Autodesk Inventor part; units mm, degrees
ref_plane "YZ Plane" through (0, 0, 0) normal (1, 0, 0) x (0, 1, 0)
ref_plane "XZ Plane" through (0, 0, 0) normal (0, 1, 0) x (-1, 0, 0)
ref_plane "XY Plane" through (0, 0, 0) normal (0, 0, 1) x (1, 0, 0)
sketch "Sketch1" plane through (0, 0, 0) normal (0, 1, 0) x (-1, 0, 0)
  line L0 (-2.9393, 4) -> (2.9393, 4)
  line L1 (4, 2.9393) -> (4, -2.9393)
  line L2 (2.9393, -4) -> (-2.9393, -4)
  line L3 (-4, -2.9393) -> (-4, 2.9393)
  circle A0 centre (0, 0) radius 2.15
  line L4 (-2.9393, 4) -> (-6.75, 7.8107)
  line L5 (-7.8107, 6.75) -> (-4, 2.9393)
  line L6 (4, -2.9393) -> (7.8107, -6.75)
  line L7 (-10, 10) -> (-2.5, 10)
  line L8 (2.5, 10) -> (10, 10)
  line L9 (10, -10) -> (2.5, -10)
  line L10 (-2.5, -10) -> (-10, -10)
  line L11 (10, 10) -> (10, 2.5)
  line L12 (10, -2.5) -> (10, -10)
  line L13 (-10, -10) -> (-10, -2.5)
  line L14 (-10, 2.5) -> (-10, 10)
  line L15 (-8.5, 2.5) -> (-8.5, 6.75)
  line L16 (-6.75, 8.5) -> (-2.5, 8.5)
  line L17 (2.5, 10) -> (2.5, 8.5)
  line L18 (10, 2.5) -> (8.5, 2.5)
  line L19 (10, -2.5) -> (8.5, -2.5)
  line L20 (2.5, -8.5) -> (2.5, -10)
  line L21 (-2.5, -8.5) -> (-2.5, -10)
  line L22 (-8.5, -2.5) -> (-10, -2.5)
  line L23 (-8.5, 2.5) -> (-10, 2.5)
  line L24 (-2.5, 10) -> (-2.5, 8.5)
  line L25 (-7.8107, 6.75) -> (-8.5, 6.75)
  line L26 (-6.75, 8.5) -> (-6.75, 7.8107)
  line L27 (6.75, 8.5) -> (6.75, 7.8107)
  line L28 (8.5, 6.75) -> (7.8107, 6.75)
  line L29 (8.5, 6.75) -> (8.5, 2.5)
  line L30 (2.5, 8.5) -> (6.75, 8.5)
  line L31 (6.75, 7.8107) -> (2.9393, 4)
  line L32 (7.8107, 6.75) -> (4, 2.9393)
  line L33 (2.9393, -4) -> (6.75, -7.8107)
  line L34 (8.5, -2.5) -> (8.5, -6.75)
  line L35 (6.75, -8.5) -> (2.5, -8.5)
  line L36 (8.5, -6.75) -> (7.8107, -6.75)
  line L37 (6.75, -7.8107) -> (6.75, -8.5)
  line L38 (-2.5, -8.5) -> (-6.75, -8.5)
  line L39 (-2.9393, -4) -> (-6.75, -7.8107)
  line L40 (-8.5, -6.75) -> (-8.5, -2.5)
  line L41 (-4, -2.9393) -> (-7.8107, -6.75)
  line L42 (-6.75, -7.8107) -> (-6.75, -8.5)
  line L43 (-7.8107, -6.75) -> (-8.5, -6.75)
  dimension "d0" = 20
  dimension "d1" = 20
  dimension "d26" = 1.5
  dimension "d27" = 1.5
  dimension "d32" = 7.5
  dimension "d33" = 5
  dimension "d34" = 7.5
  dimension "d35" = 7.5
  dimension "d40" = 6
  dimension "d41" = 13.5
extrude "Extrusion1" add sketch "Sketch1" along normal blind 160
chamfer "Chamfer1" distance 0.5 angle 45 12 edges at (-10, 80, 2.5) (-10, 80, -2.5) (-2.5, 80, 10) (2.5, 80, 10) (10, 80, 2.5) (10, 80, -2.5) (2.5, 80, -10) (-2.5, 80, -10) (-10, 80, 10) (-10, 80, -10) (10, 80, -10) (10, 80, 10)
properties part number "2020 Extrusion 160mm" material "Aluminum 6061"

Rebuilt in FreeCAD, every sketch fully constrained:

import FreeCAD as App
import Part
import Sketcher
Q = App.Units.Quantity


def edges_at(feature, points):
    """Names of the edges that pass closest to the given points."""
    edges = feature.Shape.Edges
    near = lambda p: min(range(len(edges)), key=lambda i: edges[i].distToShape(Part.Vertex(*p))[0])
    return sorted({f"Edge{near(p) + 1}" for p in points})

doc = App.newDocument("Part")
body = doc.addObject("PartDesign::Body", "Body")

sketch1 = body.newObject("Sketcher::SketchObject", "Sketch")
sketch1.AttachmentSupport = (doc.getObject("XZ_Plane"), [""])
sketch1.MapMode = "FlatFace"
sketch1.addGeometry([
    Part.LineSegment(App.Vector(-2.9393, 4, 0), App.Vector(2.9393, 4, 0)),
    Part.LineSegment(App.Vector(2.9393, 4, 0), App.Vector(6.75, 7.8107, 0)),
    Part.LineSegment(App.Vector(6.75, 7.8107, 0), App.Vector(6.75, 8.5, 0)),
    Part.LineSegment(App.Vector(6.75, 8.5, 0), App.Vector(2.5, 8.5, 0)),
    Part.LineSegment(App.Vector(2.5, 8.5, 0), App.Vector(2.5, 10, 0)),
    Part.LineSegment(App.Vector(2.5, 10, 0), App.Vector(10, 10, 0)),
    Part.LineSegment(App.Vector(10, 10, 0), App.Vector(10, 2.5, 0)),
    Part.LineSegment(App.Vector(10, 2.5, 0), App.Vector(8.5, 2.5, 0)),
    Part.LineSegment(App.Vector(8.5, 2.5, 0), App.Vector(8.5, 6.75, 0)),
    Part.LineSegment(App.Vector(8.5, 6.75, 0), App.Vector(7.8107, 6.75, 0)),
    Part.LineSegment(App.Vector(7.8107, 6.75, 0), App.Vector(4, 2.9393, 0)),
    Part.LineSegment(App.Vector(4, 2.9393, 0), App.Vector(4, -2.9393, 0)),
    Part.LineSegment(App.Vector(4, -2.9393, 0), App.Vector(7.8107, -6.75, 0)),
    Part.LineSegment(App.Vector(7.8107, -6.75, 0), App.Vector(8.5, -6.75, 0)),
    Part.LineSegment(App.Vector(8.5, -6.75, 0), App.Vector(8.5, -2.5, 0)),
    Part.LineSegment(App.Vector(8.5, -2.5, 0), App.Vector(10, -2.5, 0)),
    Part.LineSegment(App.Vector(10, -2.5, 0), App.Vector(10, -10, 0)),
    Part.LineSegment(App.Vector(10, -10, 0), App.Vector(2.5, -10, 0)),
    Part.LineSegment(App.Vector(2.5, -10, 0), App.Vector(2.5, -8.5, 0)),
    Part.LineSegment(App.Vector(2.5, -8.5, 0), App.Vector(6.75, -8.5, 0)),
    Part.LineSegment(App.Vector(6.75, -8.5, 0), App.Vector(6.75, -7.8107, 0)),
    Part.LineSegment(App.Vector(6.75, -7.8107, 0), App.Vector(2.9393, -4, 0)),
    Part.LineSegment(App.Vector(2.9393, -4, 0), App.Vector(-2.9393, -4, 0)),
    Part.LineSegment(App.Vector(-2.9393, -4, 0), App.Vector(-6.75, -7.8107, 0)),
    Part.LineSegment(App.Vector(-6.75, -7.8107, 0), App.Vector(-6.75, -8.5, 0)),
    Part.LineSegment(App.Vector(-6.75, -8.5, 0), App.Vector(-2.5, -8.5, 0)),
    Part.LineSegment(App.Vector(-2.5, -8.5, 0), App.Vector(-2.5, -10, 0)),
    Part.LineSegment(App.Vector(-2.5, -10, 0), App.Vector(-10, -10, 0)),
    Part.LineSegment(App.Vector(-10, -10, 0), App.Vector(-10, -2.5, 0)),
    Part.LineSegment(App.Vector(-10, -2.5, 0), App.Vector(-8.5, -2.5, 0)),
    Part.LineSegment(App.Vector(-8.5, -2.5, 0), App.Vector(-8.5, -6.75, 0)),
    Part.LineSegment(App.Vector(-8.5, -6.75, 0), App.Vector(-7.8107, -6.75, 0)),
    Part.LineSegment(App.Vector(-7.8107, -6.75, 0), App.Vector(-4, -2.9393, 0)),
    Part.LineSegment(App.Vector(-4, -2.9393, 0), App.Vector(-4, 2.9393, 0)),
    Part.LineSegment(App.Vector(-4, 2.9393, 0), App.Vector(-7.8107, 6.75, 0)),
    Part.LineSegment(App.Vector(-7.8107, 6.75, 0), App.Vector(-8.5, 6.75, 0)),
    Part.LineSegment(App.Vector(-8.5, 6.75, 0), App.Vector(-8.5, 2.5, 0)),
    Part.LineSegment(App.Vector(-8.5, 2.5, 0), App.Vector(-10, 2.5, 0)),
    Part.LineSegment(App.Vector(-10, 2.5, 0), App.Vector(-10, 10, 0)),
    Part.LineSegment(App.Vector(-10, 10, 0), App.Vector(-2.5, 10, 0)),
    Part.LineSegment(App.Vector(-2.5, 10, 0), App.Vector(-2.5, 8.5, 0)),
    Part.LineSegment(App.Vector(-2.5, 8.5, 0), App.Vector(-6.75, 8.5, 0)),
    Part.LineSegment(App.Vector(-6.75, 8.5, 0), App.Vector(-6.75, 7.8107, 0)),
    Part.LineSegment(App.Vector(-6.75, 7.8107, 0), App.Vector(-2.9393, 4, 0)),
    Part.Circle(App.Vector(0, 0, 0), App.Vector(0, 0, 1), 2.15),
], False)
sketch1.addConstraint([
    Sketcher.Constraint("Coincident", 0, 2, 1, 1),
    Sketcher.Constraint("Coincident", 1, 2, 2, 1),
    Sketcher.Constraint("Coincident", 2, 2, 3, 1),
    Sketcher.Constraint("Coincident", 3, 2, 4, 1),
    Sketcher.Constraint("Coincident", 4, 2, 5, 1),
    Sketcher.Constraint("Coincident", 5, 2, 6, 1),
    Sketcher.Constraint("Coincident", 6, 2, 7, 1),
    Sketcher.Constraint("Coincident", 7, 2, 8, 1),
    Sketcher.Constraint("Coincident", 8, 2, 9, 1),
    Sketcher.Constraint("Coincident", 9, 2, 10, 1),
    Sketcher.Constraint("Coincident", 10, 2, 11, 1),
    Sketcher.Constraint("Coincident", 11, 2, 12, 1),
    Sketcher.Constraint("Coincident", 12, 2, 13, 1),
    Sketcher.Constraint("Coincident", 13, 2, 14, 1),
    Sketcher.Constraint("Coincident", 14, 2, 15, 1),
    Sketcher.Constraint("Coincident", 15, 2, 16, 1),
    Sketcher.Constraint("Coincident", 16, 2, 17, 1),
    Sketcher.Constraint("Coincident", 17, 2, 18, 1),
    Sketcher.Constraint("Coincident", 18, 2, 19, 1),
    Sketcher.Constraint("Coincident", 19, 2, 20, 1),
    Sketcher.Constraint("Coincident", 20, 2, 21, 1),
    Sketcher.Constraint("Coincident", 21, 2, 22, 1),
    Sketcher.Constraint("Coincident", 22, 2, 23, 1),
    Sketcher.Constraint("Coincident", 23, 2, 24, 1),
    Sketcher.Constraint("Coincident", 24, 2, 25, 1),
    Sketcher.Constraint("Coincident", 25, 2, 26, 1),
    Sketcher.Constraint("Coincident", 26, 2, 27, 1),
    Sketcher.Constraint("Coincident", 27, 2, 28, 1),
    Sketcher.Constraint("Coincident", 28, 2, 29, 1),
    Sketcher.Constraint("Coincident", 29, 2, 30, 1),
    Sketcher.Constraint("Coincident", 30, 2, 31, 1),
    Sketcher.Constraint("Coincident", 31, 2, 32, 1),
    Sketcher.Constraint("Coincident", 32, 2, 33, 1),
    Sketcher.Constraint("Coincident", 33, 2, 34, 1),
    Sketcher.Constraint("Coincident", 34, 2, 35, 1),
    Sketcher.Constraint("Coincident", 35, 2, 36, 1),
    Sketcher.Constraint("Coincident", 36, 2, 37, 1),
    Sketcher.Constraint("Coincident", 37, 2, 38, 1),
    Sketcher.Constraint("Coincident", 38, 2, 39, 1),
    Sketcher.Constraint("Coincident", 39, 2, 40, 1),
    Sketcher.Constraint("Coincident", 40, 2, 41, 1),
    Sketcher.Constraint("Coincident", 41, 2, 42, 1),
    Sketcher.Constraint("Coincident", 42, 2, 43, 1),
    Sketcher.Constraint("Coincident", 43, 2, 0, 1),
    Sketcher.Constraint("Horizontal", 0),
    Sketcher.Constraint("Vertical", 2),
    Sketcher.Constraint("Horizontal", 3),
    Sketcher.Constraint("Vertical", 4),
    Sketcher.Constraint("Horizontal", 5),
    Sketcher.Constraint("Vertical", 6),
    Sketcher.Constraint("Horizontal", 7),
    Sketcher.Constraint("Vertical", 8),
    Sketcher.Constraint("Horizontal", 9),
    Sketcher.Constraint("Vertical", 11),
    Sketcher.Constraint("Horizontal", 13),
    Sketcher.Constraint("Vertical", 14),
    Sketcher.Constraint("Horizontal", 15),
    Sketcher.Constraint("Vertical", 16),
    Sketcher.Constraint("Horizontal", 17),
    Sketcher.Constraint("Vertical", 18),
    Sketcher.Constraint("Horizontal", 19),
    Sketcher.Constraint("Vertical", 20),
    Sketcher.Constraint("Horizontal", 22),
    Sketcher.Constraint("Vertical", 24),
    Sketcher.Constraint("Horizontal", 25),
    Sketcher.Constraint("Vertical", 26),
    Sketcher.Constraint("Horizontal", 27),
    Sketcher.Constraint("Vertical", 28),
    Sketcher.Constraint("Horizontal", 29),
    Sketcher.Constraint("Vertical", 30),
    Sketcher.Constraint("Horizontal", 31),
    Sketcher.Constraint("Vertical", 33),
    Sketcher.Constraint("Horizontal", 35),
    Sketcher.Constraint("Vertical", 36),
    Sketcher.Constraint("Horizontal", 37),
    Sketcher.Constraint("Vertical", 38),
    Sketcher.Constraint("Horizontal", 39),
    Sketcher.Constraint("Vertical", 40),
    Sketcher.Constraint("Horizontal", 41),
    Sketcher.Constraint("Vertical", 42),
    Sketcher.Constraint("Coincident", 44, 3, -1, 1),
    Sketcher.Constraint("Symmetric", 0, 2, 22, 2, -1, 1),
    Sketcher.Constraint("Symmetric", 1, 2, 23, 2, -1, 1),
    Sketcher.Constraint("Symmetric", 3, 2, 25, 2, -1, 1),
    Sketcher.Constraint("Symmetric", 5, 2, 27, 2, -1, 1),
    Sketcher.Constraint("Symmetric", 7, 2, 29, 2, -1, 1),
    Sketcher.Constraint("Symmetric", 9, 2, 31, 2, -1, 1),
    Sketcher.Constraint("Symmetric", 10, 2, 32, 2, -1, 1),
    Sketcher.Constraint("Symmetric", 12, 2, 34, 2, -1, 1),
    Sketcher.Constraint("Symmetric", 14, 2, 36, 2, -1, 1),
    Sketcher.Constraint("Symmetric", 16, 2, 38, 2, -1, 1),
    Sketcher.Constraint("Symmetric", 18, 2, 40, 2, -1, 1),
    Sketcher.Constraint("Symmetric", 20, 2, 42, 2, -1, 1),
    Sketcher.Constraint("Symmetric", 20, 2, 23, 2, -2),
    Sketcher.Constraint("Symmetric", 18, 2, 25, 2, -2),
    Sketcher.Constraint("Symmetric", 16, 2, 27, 2, -2),
    Sketcher.Constraint("Symmetric", 14, 2, 29, 2, -2),
    Sketcher.Constraint("Symmetric", 12, 2, 31, 2, -2),
    Sketcher.Constraint("Parallel", 1, 10),
    Sketcher.Constraint("Perpendicular", 10, 12),
    Sketcher.Constraint("Parallel", 12, 21),
    Sketcher.Constraint("Perpendicular", 32, 34),
    Sketcher.Constraint("Parallel", 34, 43),
    Sketcher.Constraint("Horizontal", 11, 2, 32, 2),
    Sketcher.Constraint("Equal", 35, 2),
    Sketcher.Constraint("Equal", 37, 4),
    Sketcher.Constraint("Equal", 39, 6),
    Sketcher.Constraint("Equal", 41, 8),
    Sketcher.Constraint("Equal", 22, 11),
    Sketcher.Constraint("Equal", 1, 10),
    Sketcher.Constraint("DistanceX", 5, 1, 5, 2, Q("7.5 mm")),
    Sketcher.Constraint("DistanceX", 7, 2, 7, 1, Q("1.5 mm")),
    Sketcher.Constraint("DistanceY", 0, 2, 4, 2, Q("6 mm")),
    Sketcher.Constraint("DistanceY", 14, 2, 7, 2, Q("5 mm")),
    Sketcher.Constraint("Diameter", 44, Q("4.3 mm")),
    Sketcher.Constraint("DistanceX", 3, 2, 3, 1, Q("4.25 mm")),
    Sketcher.Constraint("DistanceX", 0, 1, 0, 2, Q("5.8786 mm")),
])
pad1 = body.newObject("PartDesign::Pad", "Pad")
pad1.Profile = sketch1
pad1.Length = 160
pad1.Reversed = True
doc.recompute()

chamfer = body.newObject("PartDesign::Chamfer", "Chamfer")
chamfer.Base = (pad1, edges_at(pad1, [
    (-10, 80, 2.5),
    (-10, 80, -2.5),
    (-2.5, 80, 10),
    (2.5, 80, 10),
    (10, 80, 2.5),
    (10, 80, -2.5),
    (2.5, 80, -10),
    (-2.5, 80, -10),
    (-10, 80, 10),
    (-10, 80, -10),
    (10, 80, -10),
    (10, 80, 10),
]))
chamfer.Size = 0.5

doc.recompute()
